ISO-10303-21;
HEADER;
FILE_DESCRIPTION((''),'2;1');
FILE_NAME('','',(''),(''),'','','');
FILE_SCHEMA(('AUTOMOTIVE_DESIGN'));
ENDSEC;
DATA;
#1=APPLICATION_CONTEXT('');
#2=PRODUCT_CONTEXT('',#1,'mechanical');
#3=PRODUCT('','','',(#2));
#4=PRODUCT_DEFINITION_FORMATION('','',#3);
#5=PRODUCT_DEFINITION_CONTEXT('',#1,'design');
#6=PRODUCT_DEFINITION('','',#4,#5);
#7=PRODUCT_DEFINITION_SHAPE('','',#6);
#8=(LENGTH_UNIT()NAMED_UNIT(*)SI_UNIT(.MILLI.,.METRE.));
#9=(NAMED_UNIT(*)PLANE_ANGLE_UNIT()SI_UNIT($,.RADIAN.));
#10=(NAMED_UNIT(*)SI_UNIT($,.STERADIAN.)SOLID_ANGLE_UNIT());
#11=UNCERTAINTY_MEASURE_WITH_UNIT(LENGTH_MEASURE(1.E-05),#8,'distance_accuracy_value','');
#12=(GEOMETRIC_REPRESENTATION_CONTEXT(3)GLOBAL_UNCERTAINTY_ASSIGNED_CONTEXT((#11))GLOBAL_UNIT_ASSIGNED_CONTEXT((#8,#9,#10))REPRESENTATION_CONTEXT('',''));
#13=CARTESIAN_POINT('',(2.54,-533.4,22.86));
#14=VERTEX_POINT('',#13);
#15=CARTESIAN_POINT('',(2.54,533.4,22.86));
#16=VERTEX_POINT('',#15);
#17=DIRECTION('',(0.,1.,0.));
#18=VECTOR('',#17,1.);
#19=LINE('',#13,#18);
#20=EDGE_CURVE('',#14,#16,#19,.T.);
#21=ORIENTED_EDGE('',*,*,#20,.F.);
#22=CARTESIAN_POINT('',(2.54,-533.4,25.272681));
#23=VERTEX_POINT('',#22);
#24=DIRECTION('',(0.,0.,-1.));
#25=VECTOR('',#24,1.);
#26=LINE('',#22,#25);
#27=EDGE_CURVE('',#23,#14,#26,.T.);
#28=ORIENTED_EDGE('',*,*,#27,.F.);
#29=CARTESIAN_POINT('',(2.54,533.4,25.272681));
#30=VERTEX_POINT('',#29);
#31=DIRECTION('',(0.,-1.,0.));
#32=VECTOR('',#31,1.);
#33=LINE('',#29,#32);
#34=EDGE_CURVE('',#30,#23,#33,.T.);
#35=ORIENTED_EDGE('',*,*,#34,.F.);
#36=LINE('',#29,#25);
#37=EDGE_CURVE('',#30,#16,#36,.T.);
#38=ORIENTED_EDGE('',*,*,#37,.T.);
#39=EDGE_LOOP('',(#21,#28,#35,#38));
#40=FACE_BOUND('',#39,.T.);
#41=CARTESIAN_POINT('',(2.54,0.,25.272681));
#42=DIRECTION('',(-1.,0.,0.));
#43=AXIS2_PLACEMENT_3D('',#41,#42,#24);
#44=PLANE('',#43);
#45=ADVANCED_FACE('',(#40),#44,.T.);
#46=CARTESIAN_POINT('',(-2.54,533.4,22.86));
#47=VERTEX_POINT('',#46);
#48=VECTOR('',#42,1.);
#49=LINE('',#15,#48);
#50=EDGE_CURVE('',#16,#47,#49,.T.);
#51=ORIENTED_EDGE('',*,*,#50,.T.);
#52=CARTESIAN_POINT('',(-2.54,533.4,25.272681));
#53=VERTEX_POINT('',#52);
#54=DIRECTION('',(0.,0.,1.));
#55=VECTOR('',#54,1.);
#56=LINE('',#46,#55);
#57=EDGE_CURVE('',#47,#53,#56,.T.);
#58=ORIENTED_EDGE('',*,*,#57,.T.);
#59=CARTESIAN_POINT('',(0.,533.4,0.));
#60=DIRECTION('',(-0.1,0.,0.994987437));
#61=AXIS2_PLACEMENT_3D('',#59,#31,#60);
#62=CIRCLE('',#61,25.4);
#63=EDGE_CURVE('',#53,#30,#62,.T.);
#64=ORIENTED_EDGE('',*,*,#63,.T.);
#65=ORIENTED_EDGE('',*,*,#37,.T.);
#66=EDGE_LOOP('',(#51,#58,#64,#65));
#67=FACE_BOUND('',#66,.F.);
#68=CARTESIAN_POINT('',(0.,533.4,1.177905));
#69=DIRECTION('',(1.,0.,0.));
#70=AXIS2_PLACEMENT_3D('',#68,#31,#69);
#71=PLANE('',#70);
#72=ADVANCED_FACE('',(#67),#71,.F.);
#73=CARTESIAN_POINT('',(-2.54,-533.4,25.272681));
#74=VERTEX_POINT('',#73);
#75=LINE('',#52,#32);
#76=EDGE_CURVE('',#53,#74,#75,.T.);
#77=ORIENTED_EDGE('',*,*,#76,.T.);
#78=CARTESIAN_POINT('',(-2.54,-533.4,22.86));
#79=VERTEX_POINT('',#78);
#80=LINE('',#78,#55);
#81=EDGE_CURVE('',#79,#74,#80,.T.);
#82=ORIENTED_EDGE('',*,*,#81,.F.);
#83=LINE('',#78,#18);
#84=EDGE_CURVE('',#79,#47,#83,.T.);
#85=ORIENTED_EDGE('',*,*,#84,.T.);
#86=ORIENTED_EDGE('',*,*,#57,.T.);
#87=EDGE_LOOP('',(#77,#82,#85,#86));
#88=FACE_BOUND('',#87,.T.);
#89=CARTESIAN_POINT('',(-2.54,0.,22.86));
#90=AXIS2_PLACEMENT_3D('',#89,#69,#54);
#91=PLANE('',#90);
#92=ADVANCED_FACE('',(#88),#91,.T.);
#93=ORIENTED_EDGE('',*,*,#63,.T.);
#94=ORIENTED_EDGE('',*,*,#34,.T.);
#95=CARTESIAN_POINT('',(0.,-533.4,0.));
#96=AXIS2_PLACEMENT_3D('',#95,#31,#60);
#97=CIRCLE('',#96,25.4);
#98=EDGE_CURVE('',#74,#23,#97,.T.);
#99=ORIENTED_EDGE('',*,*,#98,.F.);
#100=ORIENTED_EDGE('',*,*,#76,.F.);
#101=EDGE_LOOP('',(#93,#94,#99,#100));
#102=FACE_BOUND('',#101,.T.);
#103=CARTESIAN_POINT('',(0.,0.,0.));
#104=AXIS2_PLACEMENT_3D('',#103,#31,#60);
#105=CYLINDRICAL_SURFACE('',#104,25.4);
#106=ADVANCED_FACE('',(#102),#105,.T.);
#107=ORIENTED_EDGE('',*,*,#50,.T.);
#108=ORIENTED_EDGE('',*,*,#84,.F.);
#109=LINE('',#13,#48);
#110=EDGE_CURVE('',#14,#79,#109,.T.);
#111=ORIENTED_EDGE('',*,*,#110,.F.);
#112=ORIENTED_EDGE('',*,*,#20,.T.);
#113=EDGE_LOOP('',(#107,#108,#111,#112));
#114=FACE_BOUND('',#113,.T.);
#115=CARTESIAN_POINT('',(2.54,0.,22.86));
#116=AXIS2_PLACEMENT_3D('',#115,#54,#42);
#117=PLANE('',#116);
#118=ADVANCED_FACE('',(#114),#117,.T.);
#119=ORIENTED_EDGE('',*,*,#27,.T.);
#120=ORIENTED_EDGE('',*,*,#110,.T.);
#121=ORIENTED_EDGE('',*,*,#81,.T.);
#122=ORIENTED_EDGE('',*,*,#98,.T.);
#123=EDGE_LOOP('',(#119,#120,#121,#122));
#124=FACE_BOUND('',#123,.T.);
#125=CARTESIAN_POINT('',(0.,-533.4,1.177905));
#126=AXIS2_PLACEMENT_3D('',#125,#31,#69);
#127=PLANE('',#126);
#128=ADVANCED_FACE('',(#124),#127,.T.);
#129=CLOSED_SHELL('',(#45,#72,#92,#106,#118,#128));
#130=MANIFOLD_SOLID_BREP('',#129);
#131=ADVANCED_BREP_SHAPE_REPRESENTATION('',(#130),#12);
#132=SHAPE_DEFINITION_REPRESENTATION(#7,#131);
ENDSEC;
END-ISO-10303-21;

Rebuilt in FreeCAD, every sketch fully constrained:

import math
import FreeCAD as App
import Part
import Sketcher

V = App.Vector
Q = App.Units.Quantity

doc = App.newDocument("Part")
body = doc.addObject("PartDesign::Body", "Body")

sketch1 = body.newObject("Sketcher::SketchObject", "Sketch")
sketch1.AttachmentSupport = (doc.getObject("XZ_Plane"), [""])
sketch1.MapMode = "FlatFace"
sketch1.addGeometry([
    Part.LineSegment(V(-2.54, 22.86, 0), V(-2.54, 25.272681, 0)),
    Part.ArcOfCircle(Part.Circle(V(0, 0, 0), V(0, 0, 1), 25.4), math.radians(95.73917), math.radians(444.26083)),
    Part.LineSegment(V(2.54, 25.272681, 0), V(2.54, 22.86, 0)),
    Part.LineSegment(V(2.54, 22.86, 0), V(-2.54, 22.86, 0)),
], False)
sketch1.addConstraint([
    Sketcher.Constraint("Coincident", 0, 2, 1, 1),
    Sketcher.Constraint("Coincident", 1, 2, 2, 1),
    Sketcher.Constraint("Coincident", 2, 2, 3, 1),
    Sketcher.Constraint("Coincident", 3, 2, 0, 1),
    Sketcher.Constraint("Vertical", 0),
    Sketcher.Constraint("Vertical", 2),
    Sketcher.Constraint("Horizontal", 3),
    Sketcher.Constraint("Coincident", 1, 3, -1, 1),
    Sketcher.Constraint("Horizontal", 0, 2, 1, 2),
    Sketcher.Constraint("Radius", 1, Q("1 in")),
    Sketcher.Constraint("DistanceX", 3, 2, 3, 1, Q("0.2 in")),
    Sketcher.Constraint("DistanceY", -1, 1, 2, 2, Q("0.9 in")),
])
pad1 = body.newObject("PartDesign::Pad", "Pad")
pad1.Profile = sketch1
pad1.Length = Q("42 in")
pad1.Midplane = True

doc.recompute()
